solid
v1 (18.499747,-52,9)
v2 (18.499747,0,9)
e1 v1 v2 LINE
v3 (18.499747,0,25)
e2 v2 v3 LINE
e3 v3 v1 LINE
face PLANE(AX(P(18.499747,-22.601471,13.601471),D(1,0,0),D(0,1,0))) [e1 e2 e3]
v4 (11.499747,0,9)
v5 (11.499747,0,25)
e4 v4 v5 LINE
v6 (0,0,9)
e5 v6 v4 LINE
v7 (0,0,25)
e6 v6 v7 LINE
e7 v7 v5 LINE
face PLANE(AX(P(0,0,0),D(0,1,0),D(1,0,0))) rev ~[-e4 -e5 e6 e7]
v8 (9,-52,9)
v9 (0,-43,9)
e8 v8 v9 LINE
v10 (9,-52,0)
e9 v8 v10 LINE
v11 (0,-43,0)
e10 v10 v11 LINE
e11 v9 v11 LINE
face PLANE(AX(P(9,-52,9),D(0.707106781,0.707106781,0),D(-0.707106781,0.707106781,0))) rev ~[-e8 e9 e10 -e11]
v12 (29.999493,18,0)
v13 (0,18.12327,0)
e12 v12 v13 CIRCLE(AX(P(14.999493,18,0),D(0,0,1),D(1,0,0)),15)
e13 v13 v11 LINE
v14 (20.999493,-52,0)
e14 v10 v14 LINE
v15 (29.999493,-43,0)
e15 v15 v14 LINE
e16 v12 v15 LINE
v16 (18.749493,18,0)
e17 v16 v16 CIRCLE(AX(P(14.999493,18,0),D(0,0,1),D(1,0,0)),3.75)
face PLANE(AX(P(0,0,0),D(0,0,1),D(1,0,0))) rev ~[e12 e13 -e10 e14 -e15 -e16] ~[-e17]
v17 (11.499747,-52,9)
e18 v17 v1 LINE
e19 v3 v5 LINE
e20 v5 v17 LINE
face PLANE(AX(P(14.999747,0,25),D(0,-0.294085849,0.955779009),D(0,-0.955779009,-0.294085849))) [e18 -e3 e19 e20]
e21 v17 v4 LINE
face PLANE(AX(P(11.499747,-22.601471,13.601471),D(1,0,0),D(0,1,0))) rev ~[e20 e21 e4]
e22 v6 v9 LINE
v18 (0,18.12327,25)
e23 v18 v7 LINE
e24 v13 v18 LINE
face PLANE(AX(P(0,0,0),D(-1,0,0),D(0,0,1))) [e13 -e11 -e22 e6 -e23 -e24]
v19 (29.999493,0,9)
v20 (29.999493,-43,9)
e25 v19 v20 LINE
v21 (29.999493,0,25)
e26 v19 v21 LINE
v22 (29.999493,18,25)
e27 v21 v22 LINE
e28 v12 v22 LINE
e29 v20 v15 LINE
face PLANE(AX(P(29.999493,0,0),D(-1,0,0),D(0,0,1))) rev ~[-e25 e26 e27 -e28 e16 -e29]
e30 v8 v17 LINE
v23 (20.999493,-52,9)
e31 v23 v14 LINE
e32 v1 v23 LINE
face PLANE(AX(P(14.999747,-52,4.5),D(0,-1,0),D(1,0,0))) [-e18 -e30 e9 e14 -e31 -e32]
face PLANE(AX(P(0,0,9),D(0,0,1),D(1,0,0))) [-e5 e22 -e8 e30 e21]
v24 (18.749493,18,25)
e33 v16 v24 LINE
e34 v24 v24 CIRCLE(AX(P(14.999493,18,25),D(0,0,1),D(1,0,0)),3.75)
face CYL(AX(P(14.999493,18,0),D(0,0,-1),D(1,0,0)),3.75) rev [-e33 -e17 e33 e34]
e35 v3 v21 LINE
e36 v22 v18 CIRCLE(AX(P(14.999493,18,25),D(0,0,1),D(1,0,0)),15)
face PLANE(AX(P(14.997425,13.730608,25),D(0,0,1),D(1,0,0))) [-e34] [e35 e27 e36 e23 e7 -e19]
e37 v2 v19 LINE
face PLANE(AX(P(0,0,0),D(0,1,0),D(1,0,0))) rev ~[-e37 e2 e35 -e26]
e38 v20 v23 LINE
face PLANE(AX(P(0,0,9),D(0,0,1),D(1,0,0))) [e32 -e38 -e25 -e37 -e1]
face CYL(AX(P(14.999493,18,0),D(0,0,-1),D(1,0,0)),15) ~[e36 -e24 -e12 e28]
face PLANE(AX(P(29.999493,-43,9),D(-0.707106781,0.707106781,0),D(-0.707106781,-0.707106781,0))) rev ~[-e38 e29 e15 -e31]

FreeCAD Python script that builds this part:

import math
import FreeCAD as App
import Part
import Sketcher

doc = App.newDocument("Part")
body = doc.addObject("PartDesign::Body", "Body")

sketch1 = body.newObject("Sketcher::SketchObject", "Sketch")
sketch1.AttachmentSupport = (doc.getObject("XY_Plane"), [""])
sketch1.MapMode = "FlatFace"
sketch1.addGeometry([
    Part.LineSegment(App.Vector(0, 18.1, 0), App.Vector(0, 0, 0)),
    Part.LineSegment(App.Vector(0, 0, 0), App.Vector(30, 0, 0)),
    Part.LineSegment(App.Vector(30, 0, 0), App.Vector(30, 18, 0)),
    Part.ArcOfCircle(Part.Circle(App.Vector(15, 18, 0), App.Vector(0, 0, 1), 15), math.radians(0), math.radians(180)),
    Part.Circle(App.Vector(15, 18, 0), App.Vector(0, 0, 1), 3.8),
], False)
sketch1.addConstraint([
    Sketcher.Constraint("Coincident", 0, 2, 1, 1),
    Sketcher.Constraint("Coincident", 1, 2, 2, 1),
    Sketcher.Constraint("Tangent", 2, 2, 3, 1),
    Sketcher.Constraint("Coincident", 3, 2, 0, 1),
    Sketcher.Constraint("Vertical", 0),
    Sketcher.Constraint("Horizontal", 1),
    Sketcher.Constraint("Vertical", 2),
    Sketcher.Constraint("Coincident", 0, 2, -1, 1),
    Sketcher.Constraint("Coincident", 4, 3, 3, 3),
    Sketcher.Constraint("Radius", 3, 15.0),
    Sketcher.Constraint("Diameter", 4, 7.5),
    Sketcher.Constraint("DistanceY", 2, 1, 2, 2, 18.0),
    Sketcher.Constraint("DistanceY", 0, 2, 0, 1, 18.12327),
])
pad1 = body.newObject("PartDesign::Pad", "Pad")
pad1.Profile = sketch1
pad1.Length = 25

sketch2 = body.newObject("Sketcher::SketchObject", "Sketch001")
sketch2.AttachmentSupport = (doc.getObject("XZ_Plane"), [""])
sketch2.MapMode = "FlatFace"
sketch2.addGeometry([
    Part.LineSegment(App.Vector(0, 9, 0), App.Vector(0, 0, 0)),
    Part.LineSegment(App.Vector(0, 0, 0), App.Vector(30, 0, 0)),
    Part.LineSegment(App.Vector(30, 0, 0), App.Vector(30, 9, 0)),
    Part.LineSegment(App.Vector(30, 9, 0), App.Vector(0, 9, 0)),
], False)
sketch2.addConstraint([
    Sketcher.Constraint("Coincident", 0, 2, 1, 1),
    Sketcher.Constraint("Coincident", 1, 2, 2, 1),
    Sketcher.Constraint("Coincident", 2, 2, 3, 1),
    Sketcher.Constraint("Coincident", 3, 2, 0, 1),
    Sketcher.Constraint("Vertical", 0),
    Sketcher.Constraint("Horizontal", 1),
    Sketcher.Constraint("Vertical", 2),
    Sketcher.Constraint("Horizontal", 3),
    Sketcher.Constraint("Coincident", 0, 2, -1, 1),
    Sketcher.Constraint("DistanceY", 0, 2, 0, 1, 9.0),
    Sketcher.Constraint("DistanceX", 1, 1, 1, 2, 29.999493),
])
pad2 = body.newObject("PartDesign::Pad", "Pad001")
pad2.Profile = sketch2
pad2.Length = 52

sketch3 = body.newObject("Sketcher::SketchObject", "Sketch002")
sketch3.AttachmentSupport = (doc.getObject("XY_Plane"), [""])
sketch3.MapMode = "FlatFace"
sketch3.AttachmentOffset = App.Placement(App.Vector(0, 0, 9), App.Rotation())
sketch3.addGeometry([
    Part.LineSegment(App.Vector(21, -52, 0), App.Vector(30, -52, 0)),
    Part.LineSegment(App.Vector(30, -52, 0), App.Vector(30, -43, 0)),
    Part.LineSegment(App.Vector(30, -43, 0), App.Vector(21, -52, 0)),
    Part.LineSegment(App.Vector(0, -43, 0), App.Vector(0, -52, 0)),
    Part.LineSegment(App.Vector(0, -52, 0), App.Vector(9, -52, 0)),
    Part.LineSegment(App.Vector(9, -52, 0), App.Vector(0, -43, 0)),
], False)
sketch3.addConstraint([
    Sketcher.Constraint("Coincident", 0, 2, 1, 1),
    Sketcher.Constraint("Coincident", 1, 2, 2, 1),
    Sketcher.Constraint("Coincident", 2, 2, 0, 1),
    Sketcher.Constraint("Coincident", 3, 2, 4, 1),
    Sketcher.Constraint("Coincident", 4, 2, 5, 1),
    Sketcher.Constraint("Coincident", 5, 2, 3, 1),
    Sketcher.Constraint("Horizontal", 0),
    Sketcher.Constraint("Vertical", 1),
    Sketcher.Constraint("Vertical", 3),
    Sketcher.Constraint("Horizontal", 4),
    Sketcher.Constraint("PointOnObject", 3, 2, -2),
    Sketcher.Constraint("Perpendicular", 2, 5),
    Sketcher.Constraint("Horizontal", 2, 2, 3, 2),
    Sketcher.Constraint("Horizontal", 1, 2, 5, 2),
    Sketcher.Constraint("Equal", 0, 4),
    Sketcher.Constraint("DistanceX", 0, 1, 0, 2, 9.0),
    Sketcher.Constraint("DistanceY", 0, 2, -1, 1, 52.0),
    Sketcher.Constraint("DistanceX", -1, 1, 0, 2, 29.999493),
])
pocket1 = body.newObject("PartDesign::Pocket", "Pocket")
pocket1.Profile = sketch3
pocket1.Length = 25

sketch4 = body.newObject("Sketcher::SketchObject", "Sketch003")
sketch4.AttachmentSupport = (doc.getObject("YZ_Plane"), [""])
sketch4.MapMode = "FlatFace"
sketch4.AttachmentOffset = App.Placement(App.Vector(0, 0, 14.999747), App.Rotation())
sketch4.addGeometry([
    Part.LineSegment(App.Vector(0, 9, 0), App.Vector(0, 25, 0)),
    Part.LineSegment(App.Vector(0, 25, 0), App.Vector(-52, 9, 0)),
    Part.LineSegment(App.Vector(-52, 9, 0), App.Vector(0, 9, 0)),
], False)
sketch4.addConstraint([
    Sketcher.Constraint("Coincident", 0, 2, 1, 1),
    Sketcher.Constraint("Coincident", 1, 2, 2, 1),
    Sketcher.Constraint("Coincident", 2, 2, 0, 1),
    Sketcher.Constraint("Vertical", 0),
    Sketcher.Constraint("Horizontal", 2),
    Sketcher.Constraint("PointOnObject", 0, 2, -2),
    Sketcher.Constraint("DistanceX", 2, 1, 2, 2, 52.0),
    Sketcher.Constraint("DistanceY", 0, 1, 0, 2, 16.0),
    Sketcher.Constraint("DistanceY", -1, 1, 0, 2, 25.0),
])
pad3 = body.newObject("PartDesign::Pad", "Pad002")
pad3.Profile = sketch4
pad3.Type = "TwoLengths"
pad3.Length = 3.5
pad3.Length2 = 3.5

doc.recompute()
